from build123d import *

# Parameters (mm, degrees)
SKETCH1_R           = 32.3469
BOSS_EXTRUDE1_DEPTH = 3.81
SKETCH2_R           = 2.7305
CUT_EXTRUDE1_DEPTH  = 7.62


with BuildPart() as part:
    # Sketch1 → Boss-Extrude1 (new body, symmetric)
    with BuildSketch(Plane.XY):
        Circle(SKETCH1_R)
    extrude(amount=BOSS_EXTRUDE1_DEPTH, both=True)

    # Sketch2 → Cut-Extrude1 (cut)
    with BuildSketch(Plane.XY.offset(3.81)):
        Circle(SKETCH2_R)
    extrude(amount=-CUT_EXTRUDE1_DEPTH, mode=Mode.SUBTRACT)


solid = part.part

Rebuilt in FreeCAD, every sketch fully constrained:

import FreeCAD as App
import Part
import Sketcher
Q = App.Units.Quantity

doc = App.newDocument("Part")
body = doc.addObject("PartDesign::Body", "Body")

sketch1 = body.newObject("Sketcher::SketchObject", "Sketch")
sketch1.AttachmentSupport = (doc.getObject("XY_Plane"), [""])
sketch1.MapMode = "FlatFace"
sketch1.addGeometry(Part.Circle(App.Vector(0, 0, 0), App.Vector(0, 0, 1), 32.3469), False)
sketch1.addConstraint(Sketcher.Constraint("Coincident", 0, 3, -1, 1))
sketch1.addConstraint(Sketcher.Constraint("Diameter", 0, Q("2.547 in")))
pad1 = body.newObject("PartDesign::Pad", "Pad")
pad1.Profile = sketch1
pad1.Length = Q("0.3 in")
pad1.Midplane = True

sketch2 = body.newObject("Sketcher::SketchObject", "Sketch001")
sketch2.AttachmentSupport = (doc.getObject("XY_Plane"), [""])
sketch2.MapMode = "FlatFace"
sketch2.AttachmentOffset = App.Placement(App.Vector(0, 0, 0.15 * 25.4), App.Rotation())
sketch2.addGeometry(Part.Circle(App.Vector(0, 0, 0), App.Vector(0, 0, 1), 2.7305), False)
sketch2.addConstraint(Sketcher.Constraint("Coincident", 0, 3, -1, 1))
sketch2.addConstraint(Sketcher.Constraint("Diameter", 0, Q("0.215 in")))
pocket1 = body.newObject("PartDesign::Pocket", "Pocket")
pocket1.Profile = sketch2
pocket1.Length = Q("0.3 in")

doc.recompute()
